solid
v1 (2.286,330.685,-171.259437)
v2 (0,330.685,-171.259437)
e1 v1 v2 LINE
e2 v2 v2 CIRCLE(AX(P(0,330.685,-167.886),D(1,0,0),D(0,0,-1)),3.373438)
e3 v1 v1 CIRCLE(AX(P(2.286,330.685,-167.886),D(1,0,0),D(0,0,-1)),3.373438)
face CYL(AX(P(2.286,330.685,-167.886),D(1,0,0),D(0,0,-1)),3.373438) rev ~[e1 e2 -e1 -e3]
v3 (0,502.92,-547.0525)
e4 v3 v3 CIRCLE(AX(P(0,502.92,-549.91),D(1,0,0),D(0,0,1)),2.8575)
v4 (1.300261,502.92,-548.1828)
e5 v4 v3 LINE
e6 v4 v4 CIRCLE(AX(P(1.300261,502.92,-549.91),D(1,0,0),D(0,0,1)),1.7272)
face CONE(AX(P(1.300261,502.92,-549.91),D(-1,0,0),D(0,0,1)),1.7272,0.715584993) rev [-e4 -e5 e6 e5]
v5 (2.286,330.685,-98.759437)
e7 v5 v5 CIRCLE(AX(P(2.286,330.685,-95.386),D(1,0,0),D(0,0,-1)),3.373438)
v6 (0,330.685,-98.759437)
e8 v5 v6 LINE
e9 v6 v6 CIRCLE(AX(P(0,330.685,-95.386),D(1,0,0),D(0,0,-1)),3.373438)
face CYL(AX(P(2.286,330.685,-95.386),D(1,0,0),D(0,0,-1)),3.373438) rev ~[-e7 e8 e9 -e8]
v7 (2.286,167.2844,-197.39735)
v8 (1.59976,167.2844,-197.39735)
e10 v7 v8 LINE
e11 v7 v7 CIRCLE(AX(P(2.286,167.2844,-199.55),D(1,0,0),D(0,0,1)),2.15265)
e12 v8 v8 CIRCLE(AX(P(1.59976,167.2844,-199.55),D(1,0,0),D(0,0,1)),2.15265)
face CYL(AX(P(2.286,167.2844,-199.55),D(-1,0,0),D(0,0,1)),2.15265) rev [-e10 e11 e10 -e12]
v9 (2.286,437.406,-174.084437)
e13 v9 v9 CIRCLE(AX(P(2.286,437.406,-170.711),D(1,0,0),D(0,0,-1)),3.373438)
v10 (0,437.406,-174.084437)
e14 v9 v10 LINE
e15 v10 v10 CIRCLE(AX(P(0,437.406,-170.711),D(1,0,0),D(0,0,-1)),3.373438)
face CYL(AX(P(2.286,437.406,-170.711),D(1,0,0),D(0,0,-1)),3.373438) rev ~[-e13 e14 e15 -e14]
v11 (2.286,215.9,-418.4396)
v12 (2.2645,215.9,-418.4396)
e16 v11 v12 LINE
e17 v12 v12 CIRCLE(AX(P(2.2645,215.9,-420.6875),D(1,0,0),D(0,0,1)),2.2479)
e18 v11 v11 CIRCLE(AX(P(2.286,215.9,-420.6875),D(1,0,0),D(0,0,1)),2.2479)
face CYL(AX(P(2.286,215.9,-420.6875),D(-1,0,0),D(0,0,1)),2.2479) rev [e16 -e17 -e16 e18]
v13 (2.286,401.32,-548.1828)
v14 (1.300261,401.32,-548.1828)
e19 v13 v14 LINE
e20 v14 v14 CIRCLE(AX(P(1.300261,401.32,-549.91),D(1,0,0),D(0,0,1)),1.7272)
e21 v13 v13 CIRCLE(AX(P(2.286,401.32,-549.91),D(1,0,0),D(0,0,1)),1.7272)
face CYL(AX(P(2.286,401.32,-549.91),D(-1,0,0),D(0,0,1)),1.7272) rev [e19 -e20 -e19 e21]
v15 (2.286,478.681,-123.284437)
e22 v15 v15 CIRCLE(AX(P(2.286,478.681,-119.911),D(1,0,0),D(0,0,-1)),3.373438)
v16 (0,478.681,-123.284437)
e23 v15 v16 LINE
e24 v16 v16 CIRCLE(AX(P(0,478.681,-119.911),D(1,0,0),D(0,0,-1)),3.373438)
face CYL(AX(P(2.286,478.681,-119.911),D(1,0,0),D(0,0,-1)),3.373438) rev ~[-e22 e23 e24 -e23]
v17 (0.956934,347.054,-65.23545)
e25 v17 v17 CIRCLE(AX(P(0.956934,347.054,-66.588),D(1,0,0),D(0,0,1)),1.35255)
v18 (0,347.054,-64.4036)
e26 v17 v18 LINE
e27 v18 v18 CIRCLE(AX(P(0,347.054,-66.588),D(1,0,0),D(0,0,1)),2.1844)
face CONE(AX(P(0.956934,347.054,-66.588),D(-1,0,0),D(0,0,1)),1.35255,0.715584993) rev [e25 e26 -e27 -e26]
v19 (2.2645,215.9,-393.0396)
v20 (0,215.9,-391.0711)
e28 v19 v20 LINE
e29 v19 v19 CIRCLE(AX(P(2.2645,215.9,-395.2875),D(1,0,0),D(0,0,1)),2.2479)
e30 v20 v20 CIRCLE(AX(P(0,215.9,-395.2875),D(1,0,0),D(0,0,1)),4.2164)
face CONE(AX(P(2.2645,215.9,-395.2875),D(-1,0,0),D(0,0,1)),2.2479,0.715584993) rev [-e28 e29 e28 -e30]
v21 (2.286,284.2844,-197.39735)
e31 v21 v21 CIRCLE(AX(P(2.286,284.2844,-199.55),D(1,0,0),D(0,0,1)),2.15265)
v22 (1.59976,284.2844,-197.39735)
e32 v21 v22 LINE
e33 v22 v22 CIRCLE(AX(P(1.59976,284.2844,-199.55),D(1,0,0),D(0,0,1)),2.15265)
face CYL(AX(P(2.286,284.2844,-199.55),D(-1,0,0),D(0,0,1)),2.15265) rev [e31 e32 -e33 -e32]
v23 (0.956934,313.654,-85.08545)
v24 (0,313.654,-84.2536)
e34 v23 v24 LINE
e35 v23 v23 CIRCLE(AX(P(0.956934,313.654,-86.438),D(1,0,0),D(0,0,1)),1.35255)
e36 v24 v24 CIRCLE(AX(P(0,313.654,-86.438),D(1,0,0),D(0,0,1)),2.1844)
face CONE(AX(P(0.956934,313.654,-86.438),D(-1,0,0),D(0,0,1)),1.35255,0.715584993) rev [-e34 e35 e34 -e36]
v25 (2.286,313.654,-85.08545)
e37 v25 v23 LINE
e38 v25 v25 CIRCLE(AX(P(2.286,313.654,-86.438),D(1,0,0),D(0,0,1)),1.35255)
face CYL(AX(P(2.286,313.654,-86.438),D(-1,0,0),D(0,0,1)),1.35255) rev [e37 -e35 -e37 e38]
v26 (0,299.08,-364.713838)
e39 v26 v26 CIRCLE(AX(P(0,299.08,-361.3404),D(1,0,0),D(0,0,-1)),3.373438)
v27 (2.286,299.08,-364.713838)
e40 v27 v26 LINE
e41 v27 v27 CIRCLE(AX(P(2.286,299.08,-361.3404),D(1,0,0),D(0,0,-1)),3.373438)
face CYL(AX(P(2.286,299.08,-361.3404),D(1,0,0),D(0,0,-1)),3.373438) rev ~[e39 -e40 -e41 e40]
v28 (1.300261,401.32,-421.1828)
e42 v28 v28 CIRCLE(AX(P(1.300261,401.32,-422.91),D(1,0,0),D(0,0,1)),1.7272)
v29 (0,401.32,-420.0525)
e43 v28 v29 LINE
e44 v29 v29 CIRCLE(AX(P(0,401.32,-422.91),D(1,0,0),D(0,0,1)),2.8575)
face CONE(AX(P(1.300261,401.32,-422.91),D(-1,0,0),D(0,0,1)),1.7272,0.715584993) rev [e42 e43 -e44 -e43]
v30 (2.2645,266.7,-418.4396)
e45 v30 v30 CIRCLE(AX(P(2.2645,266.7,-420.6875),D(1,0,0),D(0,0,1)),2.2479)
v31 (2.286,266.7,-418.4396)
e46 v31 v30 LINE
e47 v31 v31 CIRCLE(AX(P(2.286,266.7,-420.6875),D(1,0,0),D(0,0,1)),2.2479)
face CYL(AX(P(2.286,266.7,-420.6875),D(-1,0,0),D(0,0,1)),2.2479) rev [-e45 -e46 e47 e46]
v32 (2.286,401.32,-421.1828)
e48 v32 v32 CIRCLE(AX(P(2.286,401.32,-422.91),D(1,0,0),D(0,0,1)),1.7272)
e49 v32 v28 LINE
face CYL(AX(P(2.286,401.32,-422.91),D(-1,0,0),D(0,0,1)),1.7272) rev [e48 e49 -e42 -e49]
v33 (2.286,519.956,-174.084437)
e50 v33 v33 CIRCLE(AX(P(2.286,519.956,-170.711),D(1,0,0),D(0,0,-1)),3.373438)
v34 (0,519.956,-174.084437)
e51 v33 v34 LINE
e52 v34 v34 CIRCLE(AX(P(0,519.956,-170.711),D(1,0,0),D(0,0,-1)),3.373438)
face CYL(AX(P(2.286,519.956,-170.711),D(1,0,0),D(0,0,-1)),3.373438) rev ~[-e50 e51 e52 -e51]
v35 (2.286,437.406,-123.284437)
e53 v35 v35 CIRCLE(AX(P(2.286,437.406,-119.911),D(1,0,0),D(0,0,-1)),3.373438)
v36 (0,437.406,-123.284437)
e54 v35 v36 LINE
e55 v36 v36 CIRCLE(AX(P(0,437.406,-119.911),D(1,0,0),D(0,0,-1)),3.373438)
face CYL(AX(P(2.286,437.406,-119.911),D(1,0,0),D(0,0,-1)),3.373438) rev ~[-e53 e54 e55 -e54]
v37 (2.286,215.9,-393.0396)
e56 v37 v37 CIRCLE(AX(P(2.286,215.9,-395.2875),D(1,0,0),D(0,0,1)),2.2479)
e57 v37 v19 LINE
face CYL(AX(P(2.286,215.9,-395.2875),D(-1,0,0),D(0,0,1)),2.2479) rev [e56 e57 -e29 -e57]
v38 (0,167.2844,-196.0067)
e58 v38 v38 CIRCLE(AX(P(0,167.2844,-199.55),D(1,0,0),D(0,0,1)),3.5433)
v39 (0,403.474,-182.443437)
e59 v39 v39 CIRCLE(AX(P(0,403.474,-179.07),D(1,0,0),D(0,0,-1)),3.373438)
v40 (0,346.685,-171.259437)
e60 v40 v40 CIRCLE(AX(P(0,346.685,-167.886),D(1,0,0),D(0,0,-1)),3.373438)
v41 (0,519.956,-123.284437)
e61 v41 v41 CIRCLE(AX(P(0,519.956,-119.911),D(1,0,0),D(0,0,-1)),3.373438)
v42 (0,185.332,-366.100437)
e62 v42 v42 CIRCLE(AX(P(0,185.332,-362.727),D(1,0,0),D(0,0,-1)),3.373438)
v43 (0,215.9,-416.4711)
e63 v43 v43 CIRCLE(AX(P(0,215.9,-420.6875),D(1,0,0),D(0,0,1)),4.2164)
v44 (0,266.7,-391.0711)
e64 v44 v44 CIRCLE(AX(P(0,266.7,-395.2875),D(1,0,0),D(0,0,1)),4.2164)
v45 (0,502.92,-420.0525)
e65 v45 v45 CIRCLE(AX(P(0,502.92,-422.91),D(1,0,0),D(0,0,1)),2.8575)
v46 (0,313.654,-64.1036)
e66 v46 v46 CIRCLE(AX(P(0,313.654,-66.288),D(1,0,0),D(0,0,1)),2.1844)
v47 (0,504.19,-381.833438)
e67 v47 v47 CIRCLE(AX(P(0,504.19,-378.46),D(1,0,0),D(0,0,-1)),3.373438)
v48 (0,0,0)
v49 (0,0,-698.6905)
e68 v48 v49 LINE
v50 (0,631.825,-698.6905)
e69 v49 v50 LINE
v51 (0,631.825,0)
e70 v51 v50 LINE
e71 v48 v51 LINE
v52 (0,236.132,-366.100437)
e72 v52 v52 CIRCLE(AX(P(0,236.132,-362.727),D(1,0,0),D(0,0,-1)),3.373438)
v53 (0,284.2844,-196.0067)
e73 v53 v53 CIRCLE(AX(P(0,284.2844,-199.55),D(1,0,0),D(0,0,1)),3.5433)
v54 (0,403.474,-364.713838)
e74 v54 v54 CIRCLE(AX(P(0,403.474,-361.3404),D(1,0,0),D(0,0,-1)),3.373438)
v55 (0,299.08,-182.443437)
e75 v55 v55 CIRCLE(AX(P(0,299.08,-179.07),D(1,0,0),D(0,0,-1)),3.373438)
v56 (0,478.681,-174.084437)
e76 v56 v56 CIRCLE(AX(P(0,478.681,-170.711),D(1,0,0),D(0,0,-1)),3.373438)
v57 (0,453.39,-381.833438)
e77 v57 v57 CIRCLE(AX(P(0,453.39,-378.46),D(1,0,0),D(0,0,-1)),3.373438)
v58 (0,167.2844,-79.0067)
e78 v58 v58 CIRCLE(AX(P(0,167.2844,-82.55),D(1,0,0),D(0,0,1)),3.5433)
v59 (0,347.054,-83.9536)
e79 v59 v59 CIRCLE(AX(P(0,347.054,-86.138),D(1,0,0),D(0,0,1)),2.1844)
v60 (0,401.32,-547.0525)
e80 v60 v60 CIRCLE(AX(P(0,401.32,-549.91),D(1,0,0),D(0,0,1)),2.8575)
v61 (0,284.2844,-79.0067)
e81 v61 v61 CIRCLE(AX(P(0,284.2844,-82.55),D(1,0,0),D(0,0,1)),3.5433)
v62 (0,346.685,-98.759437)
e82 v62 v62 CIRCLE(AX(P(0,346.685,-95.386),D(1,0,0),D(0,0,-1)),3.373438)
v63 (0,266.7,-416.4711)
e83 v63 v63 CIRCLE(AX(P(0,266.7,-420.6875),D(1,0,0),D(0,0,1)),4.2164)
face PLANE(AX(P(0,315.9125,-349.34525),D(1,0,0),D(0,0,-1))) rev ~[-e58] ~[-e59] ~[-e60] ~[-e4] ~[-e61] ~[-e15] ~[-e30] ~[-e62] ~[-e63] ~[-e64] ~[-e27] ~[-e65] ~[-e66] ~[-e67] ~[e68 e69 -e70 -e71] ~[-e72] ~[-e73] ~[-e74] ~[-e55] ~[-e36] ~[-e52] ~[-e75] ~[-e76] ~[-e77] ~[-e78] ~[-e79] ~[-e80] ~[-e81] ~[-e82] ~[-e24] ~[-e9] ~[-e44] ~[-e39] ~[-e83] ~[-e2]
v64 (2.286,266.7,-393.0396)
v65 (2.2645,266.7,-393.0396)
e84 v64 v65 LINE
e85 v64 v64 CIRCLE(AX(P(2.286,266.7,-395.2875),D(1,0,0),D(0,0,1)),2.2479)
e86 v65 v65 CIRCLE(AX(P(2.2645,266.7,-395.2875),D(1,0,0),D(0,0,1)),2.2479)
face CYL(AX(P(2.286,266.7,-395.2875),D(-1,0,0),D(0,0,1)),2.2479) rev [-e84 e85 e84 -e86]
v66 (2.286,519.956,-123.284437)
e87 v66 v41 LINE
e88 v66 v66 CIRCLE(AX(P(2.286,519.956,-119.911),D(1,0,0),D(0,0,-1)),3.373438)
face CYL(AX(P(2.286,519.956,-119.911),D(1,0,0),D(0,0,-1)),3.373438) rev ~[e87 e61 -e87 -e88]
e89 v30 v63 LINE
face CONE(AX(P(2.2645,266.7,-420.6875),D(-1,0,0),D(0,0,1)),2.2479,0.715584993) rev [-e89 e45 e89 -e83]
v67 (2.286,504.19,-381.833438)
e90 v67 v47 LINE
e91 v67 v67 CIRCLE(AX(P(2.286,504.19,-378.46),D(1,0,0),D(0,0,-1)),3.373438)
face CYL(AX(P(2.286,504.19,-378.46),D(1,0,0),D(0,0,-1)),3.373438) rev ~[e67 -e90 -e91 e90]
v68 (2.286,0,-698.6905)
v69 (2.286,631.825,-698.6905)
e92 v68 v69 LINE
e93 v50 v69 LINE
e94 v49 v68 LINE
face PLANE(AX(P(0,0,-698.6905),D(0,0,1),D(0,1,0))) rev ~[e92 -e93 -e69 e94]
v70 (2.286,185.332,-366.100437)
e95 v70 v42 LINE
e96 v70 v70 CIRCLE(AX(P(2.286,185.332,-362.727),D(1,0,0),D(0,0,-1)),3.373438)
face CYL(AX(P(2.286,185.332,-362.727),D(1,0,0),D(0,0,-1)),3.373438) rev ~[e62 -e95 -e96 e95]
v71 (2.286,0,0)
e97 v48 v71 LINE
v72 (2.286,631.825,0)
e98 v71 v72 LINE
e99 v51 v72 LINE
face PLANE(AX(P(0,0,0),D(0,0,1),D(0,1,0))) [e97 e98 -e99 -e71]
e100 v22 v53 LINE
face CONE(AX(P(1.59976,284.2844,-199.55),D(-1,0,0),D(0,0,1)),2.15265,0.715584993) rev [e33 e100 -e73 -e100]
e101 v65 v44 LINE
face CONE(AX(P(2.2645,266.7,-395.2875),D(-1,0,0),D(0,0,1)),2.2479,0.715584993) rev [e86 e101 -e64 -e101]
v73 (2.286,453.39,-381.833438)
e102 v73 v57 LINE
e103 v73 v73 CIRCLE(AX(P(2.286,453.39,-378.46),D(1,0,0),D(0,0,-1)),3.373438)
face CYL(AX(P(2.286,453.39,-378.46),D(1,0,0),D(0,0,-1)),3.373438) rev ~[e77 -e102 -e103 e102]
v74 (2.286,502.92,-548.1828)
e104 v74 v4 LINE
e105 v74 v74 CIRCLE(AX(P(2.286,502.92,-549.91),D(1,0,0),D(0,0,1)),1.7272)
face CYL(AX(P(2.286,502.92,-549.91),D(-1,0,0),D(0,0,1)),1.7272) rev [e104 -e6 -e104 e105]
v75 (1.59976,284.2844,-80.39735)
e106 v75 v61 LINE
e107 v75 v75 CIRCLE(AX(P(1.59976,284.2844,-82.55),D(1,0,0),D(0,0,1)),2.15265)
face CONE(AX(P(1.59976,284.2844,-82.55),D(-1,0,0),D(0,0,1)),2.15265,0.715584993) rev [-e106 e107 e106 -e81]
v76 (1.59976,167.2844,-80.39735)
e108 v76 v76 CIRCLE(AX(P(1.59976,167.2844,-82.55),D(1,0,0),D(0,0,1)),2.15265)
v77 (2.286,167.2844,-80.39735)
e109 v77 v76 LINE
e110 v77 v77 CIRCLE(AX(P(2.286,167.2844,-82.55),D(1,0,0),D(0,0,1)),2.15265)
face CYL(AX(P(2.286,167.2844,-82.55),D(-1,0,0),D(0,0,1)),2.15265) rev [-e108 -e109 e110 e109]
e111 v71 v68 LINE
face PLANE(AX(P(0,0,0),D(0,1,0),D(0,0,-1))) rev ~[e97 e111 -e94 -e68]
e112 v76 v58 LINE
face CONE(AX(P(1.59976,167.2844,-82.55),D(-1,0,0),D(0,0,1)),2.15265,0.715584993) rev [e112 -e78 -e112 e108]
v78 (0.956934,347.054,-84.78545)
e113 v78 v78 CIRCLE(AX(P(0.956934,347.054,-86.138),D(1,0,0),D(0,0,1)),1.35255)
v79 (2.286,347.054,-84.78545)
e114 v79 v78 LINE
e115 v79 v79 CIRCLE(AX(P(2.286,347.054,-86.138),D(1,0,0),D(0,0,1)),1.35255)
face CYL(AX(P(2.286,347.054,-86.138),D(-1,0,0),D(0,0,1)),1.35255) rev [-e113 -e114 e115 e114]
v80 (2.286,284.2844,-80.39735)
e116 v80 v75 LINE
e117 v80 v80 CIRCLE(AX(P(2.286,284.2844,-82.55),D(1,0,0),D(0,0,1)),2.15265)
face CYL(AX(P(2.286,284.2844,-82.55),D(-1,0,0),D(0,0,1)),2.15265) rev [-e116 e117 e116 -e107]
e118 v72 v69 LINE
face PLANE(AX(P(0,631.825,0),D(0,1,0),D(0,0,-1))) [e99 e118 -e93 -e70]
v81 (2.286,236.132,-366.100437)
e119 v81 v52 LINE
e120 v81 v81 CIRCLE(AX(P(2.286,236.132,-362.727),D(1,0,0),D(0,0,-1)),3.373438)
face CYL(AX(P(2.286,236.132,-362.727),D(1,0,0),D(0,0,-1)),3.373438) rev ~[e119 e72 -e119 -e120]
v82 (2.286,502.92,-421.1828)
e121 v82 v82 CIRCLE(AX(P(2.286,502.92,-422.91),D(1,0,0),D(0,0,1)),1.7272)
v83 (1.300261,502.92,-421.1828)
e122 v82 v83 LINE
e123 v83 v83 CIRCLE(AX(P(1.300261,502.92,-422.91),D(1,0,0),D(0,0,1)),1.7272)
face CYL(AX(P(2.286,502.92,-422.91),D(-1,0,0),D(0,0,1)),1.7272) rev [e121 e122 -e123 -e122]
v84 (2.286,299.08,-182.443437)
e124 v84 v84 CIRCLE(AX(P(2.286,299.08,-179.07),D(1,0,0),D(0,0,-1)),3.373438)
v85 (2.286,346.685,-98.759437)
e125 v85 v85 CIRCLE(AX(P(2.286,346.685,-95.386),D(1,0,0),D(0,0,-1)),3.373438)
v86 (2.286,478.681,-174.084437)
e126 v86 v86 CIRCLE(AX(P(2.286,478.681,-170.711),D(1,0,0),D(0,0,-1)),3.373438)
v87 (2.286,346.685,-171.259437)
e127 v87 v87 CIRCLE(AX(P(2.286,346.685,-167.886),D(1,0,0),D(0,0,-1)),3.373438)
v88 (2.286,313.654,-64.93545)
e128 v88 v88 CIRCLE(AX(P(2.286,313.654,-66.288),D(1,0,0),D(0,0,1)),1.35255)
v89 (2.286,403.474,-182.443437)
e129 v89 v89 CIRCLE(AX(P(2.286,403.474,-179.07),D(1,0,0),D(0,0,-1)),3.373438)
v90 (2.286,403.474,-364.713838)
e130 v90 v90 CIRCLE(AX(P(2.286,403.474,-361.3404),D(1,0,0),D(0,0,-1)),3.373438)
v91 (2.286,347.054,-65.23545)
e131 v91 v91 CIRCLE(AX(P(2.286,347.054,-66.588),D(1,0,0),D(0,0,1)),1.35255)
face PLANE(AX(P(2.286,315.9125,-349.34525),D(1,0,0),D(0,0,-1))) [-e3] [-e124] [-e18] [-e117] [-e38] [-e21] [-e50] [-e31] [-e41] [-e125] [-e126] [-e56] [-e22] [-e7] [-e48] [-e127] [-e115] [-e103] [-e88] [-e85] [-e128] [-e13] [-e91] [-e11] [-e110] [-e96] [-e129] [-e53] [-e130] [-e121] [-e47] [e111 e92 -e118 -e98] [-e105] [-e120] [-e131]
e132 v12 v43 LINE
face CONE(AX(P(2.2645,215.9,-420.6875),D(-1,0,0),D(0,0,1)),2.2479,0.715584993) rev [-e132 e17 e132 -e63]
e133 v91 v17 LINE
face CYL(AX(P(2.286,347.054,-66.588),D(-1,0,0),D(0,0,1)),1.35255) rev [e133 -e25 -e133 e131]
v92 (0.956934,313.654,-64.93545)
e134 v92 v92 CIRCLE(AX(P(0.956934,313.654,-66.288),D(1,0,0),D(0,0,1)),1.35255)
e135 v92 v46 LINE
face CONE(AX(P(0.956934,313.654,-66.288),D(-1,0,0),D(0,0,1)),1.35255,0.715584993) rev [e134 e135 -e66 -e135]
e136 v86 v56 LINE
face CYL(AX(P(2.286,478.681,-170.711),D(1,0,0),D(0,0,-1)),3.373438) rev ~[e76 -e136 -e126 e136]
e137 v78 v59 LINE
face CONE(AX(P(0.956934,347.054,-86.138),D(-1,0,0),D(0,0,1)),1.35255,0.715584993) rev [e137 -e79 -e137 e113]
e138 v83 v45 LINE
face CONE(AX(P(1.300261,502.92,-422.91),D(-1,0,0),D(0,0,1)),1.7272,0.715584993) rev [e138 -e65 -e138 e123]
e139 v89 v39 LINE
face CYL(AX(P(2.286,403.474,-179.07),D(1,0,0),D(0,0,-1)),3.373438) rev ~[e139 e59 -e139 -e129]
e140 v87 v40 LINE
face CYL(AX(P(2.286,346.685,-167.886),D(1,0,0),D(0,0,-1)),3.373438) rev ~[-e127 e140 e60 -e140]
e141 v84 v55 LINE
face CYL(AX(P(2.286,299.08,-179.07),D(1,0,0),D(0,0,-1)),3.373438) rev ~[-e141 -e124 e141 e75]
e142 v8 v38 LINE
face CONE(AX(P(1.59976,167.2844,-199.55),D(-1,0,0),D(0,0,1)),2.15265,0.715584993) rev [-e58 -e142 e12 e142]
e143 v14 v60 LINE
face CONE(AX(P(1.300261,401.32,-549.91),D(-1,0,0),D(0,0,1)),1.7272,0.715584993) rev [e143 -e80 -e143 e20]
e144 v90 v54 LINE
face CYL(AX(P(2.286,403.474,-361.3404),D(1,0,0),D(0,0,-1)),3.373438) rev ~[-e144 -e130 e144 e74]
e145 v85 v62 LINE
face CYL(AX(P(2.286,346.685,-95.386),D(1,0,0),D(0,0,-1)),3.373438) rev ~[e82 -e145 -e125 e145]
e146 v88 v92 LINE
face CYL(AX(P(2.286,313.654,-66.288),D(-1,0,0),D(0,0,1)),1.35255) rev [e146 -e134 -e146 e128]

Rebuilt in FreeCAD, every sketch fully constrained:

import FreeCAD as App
import Part
import Sketcher

V = App.Vector
Q = App.Units.Quantity

doc = App.newDocument("Part")
body = doc.addObject("PartDesign::Body", "Body")

# Sketch on YZ plane
sketch1 = doc.addObject("Sketcher::SketchObject", "Sketch")
body.addObject(sketch1)
sketch1.AttachmentSupport = (doc.YZ_Plane, [""])
sketch1.MapMode = "FlatFace"
sketch1.addGeometry([
    Part.LineSegment(V(632, 0, 0), V(0, 0, 0)),
    Part.LineSegment(V(0, 0, 0), V(0, -699, 0)),
    Part.LineSegment(V(0, -699, 0), V(632, -699, 0)),
    Part.LineSegment(V(632, -699, 0), V(632, 0, 0)),
], False)
sketch1.addConstraint([
    Sketcher.Constraint("Coincident", 0, 2, 1, 1),
    Sketcher.Constraint("Coincident", 1, 2, 2, 1),
    Sketcher.Constraint("Coincident", 2, 2, 3, 1),
    Sketcher.Constraint("Coincident", 3, 2, 0, 1),
    Sketcher.Constraint("Horizontal", 0),
    Sketcher.Constraint("Vertical", 1),
    Sketcher.Constraint("Horizontal", 2),
    Sketcher.Constraint("Vertical", 3),
    Sketcher.Constraint("Coincident", 0, 2, -1, 1),
    Sketcher.Constraint("DistanceX", 0, 2, 0, 1, Q("24.875 in")),
    Sketcher.Constraint("DistanceY", 1, 2, 1, 1, Q("27.5075 in")),
])
pad1 = doc.addObject("PartDesign::Pad", "Pad")
body.addObject(pad1)
pad1.Profile = sketch1
pad1.Length = Q("0.09 in")

# Sketch on YZ plane
sketch2 = doc.addObject("Sketcher::SketchObject", "Sketch001")
body.addObject(sketch2)
sketch2.AttachmentSupport = (doc.YZ_Plane, [""])
sketch2.MapMode = "FlatFace"
sketch2.AttachmentOffset = App.Placement(V(0, 0, 0.09 * 25.4), App.Rotation())
sketch2.addGeometry([
    Part.Circle(V(299.1, -179.1, 0), V(0, 0, 1), 3.4),  # 0
    Part.Circle(V(403.5, -179.1, 0), V(0, 0, 1), 3.4),  # 1
    Part.Circle(V(403.5, -361.3, 0), V(0, 0, 1), 3.4),  # 2
    Part.Circle(V(299.1, -361.3, 0), V(0, 0, 1), 3.4),  # 3
    Part.Circle(V(437.4, -119.9, 0), V(0, 0, 1), 3.4),  # 4
    Part.Circle(V(437.4, -170.7, 0), V(0, 0, 1), 3.4),  # 5
    Part.Circle(V(478.7, -119.9, 0), V(0, 0, 1), 3.4),  # 6
    Part.Circle(V(478.7, -170.7, 0), V(0, 0, 1), 3.4),  # 7
    Part.Circle(V(520, -119.9, 0), V(0, 0, 1), 3.4),  # 8
    Part.Circle(V(520, -170.7, 0), V(0, 0, 1), 3.4),  # 9
    Part.Circle(V(185.3, -362.7, 0), V(0, 0, 1), 3.4),  # 10
    Part.Circle(V(236.1, -362.7, 0), V(0, 0, 1), 3.4),  # 11
    Part.Circle(V(453.4, -378.5, 0), V(0, 0, 1), 3.4),  # 12
    Part.Circle(V(504.2, -378.5, 0), V(0, 0, 1), 3.4),  # 13
    Part.Circle(V(330.7, -95.4, 0), V(0, 0, 1), 3.4),  # 14
    Part.Circle(V(346.7, -95.4, 0), V(0, 0, 1), 3.4),  # 15
    Part.Circle(V(346.7, -167.9, 0), V(0, 0, 1), 3.4),  # 16
    Part.Circle(V(330.7, -167.9, 0), V(0, 0, 1), 3.4),  # 17
], False)
sketch2.addConstraint([
    Sketcher.Constraint("Equal", 0, 1),
    Sketcher.Constraint("Equal", 1, 2),
    Sketcher.Constraint("Equal", 2, 3),
    Sketcher.Constraint("Equal", 3, 4),
    Sketcher.Constraint("Equal", 4, 5),
    Sketcher.Constraint("Equal", 5, 6),
    Sketcher.Constraint("Equal", 6, 7),
    Sketcher.Constraint("Equal", 7, 8),
    Sketcher.Constraint("Equal", 8, 9),
    Sketcher.Constraint("Equal", 9, 10),
    Sketcher.Constraint("Equal", 10, 11),
    Sketcher.Constraint("Equal", 11, 12),
    Sketcher.Constraint("Equal", 12, 13),
    Sketcher.Constraint("Equal", 13, 14),
    Sketcher.Constraint("Equal", 14, 15),
    Sketcher.Constraint("Equal", 15, 16),
    Sketcher.Constraint("Equal", 16, 17),
    Sketcher.Constraint("Horizontal", 0, 3, 1, 3),
    Sketcher.Constraint("Horizontal", 2, 3, 3, 3),
    Sketcher.Constraint("Horizontal", 4, 3, 6, 3),
    Sketcher.Constraint("Horizontal", 5, 3, 7, 3),
    Sketcher.Constraint("Horizontal", 6, 3, 8, 3),
    Sketcher.Constraint("Horizontal", 7, 3, 9, 3),
    Sketcher.Constraint("Horizontal", 10, 3, 11, 3),
    Sketcher.Constraint("Horizontal", 12, 3, 13, 3),
    Sketcher.Constraint("Horizontal", 14, 3, 15, 3),
    Sketcher.Constraint("Horizontal", 16, 3, 17, 3),
    Sketcher.Constraint("Vertical", 1, 3, 2, 3),
    Sketcher.Constraint("Vertical", 0, 3, 3, 3),
    Sketcher.Constraint("Vertical", 4, 3, 5, 3),
    Sketcher.Constraint("Vertical", 6, 3, 7, 3),
    Sketcher.Constraint("Vertical", 8, 3, 9, 3),
    Sketcher.Constraint("Vertical", 15, 3, 16, 3),
    Sketcher.Constraint("Vertical", 14, 3, 17, 3),
    Sketcher.Constraint("Diameter", 0, Q("0.265625 in")),
    Sketcher.Constraint("DistanceY", 5, 3, 4, 3, Q("2 in")),
    Sketcher.Constraint("DistanceX", 10, 3, 11, 3, Q("2 in")),
    Sketcher.Constraint("DistanceX", 12, 3, 13, 3, Q("2 in")),
    Sketcher.Constraint("DistanceY", 12, 3, -1, 1, Q("14.9 in")),
    Sketcher.Constraint("DistanceY", 0, 3, -1, 1, Q("7.05 in")),
    Sketcher.Constraint("DistanceX", -1, 1, 12, 3, Q("17.85 in")),
    Sketcher.Constraint("DistanceX", 0, 3, 1, 3, Q("4.11 in")),
    Sketcher.Constraint("DistanceX", 4, 3, 8, 3, Q("3.25 in")),
    Sketcher.Constraint("DistanceY", 2, 3, -1, 1, Q("14.226 in")),
    Sketcher.Constraint("DistanceX", 4, 3, 6, 3, Q("1.625 in")),
    Sketcher.Constraint("DistanceX", -1, 1, 0, 3, 299.08),
    Sketcher.Constraint("DistanceX", -1, 1, 4, 3, 437.406),
    Sketcher.Constraint("DistanceY", 4, 3, -1, 1, 119.911),
    Sketcher.Constraint("DistanceX", -1, 1, 10, 3, 185.332),
    Sketcher.Constraint("DistanceY", 10, 3, -1, 1, 362.727),
    Sketcher.Constraint("DistanceX", -1, 1, 14, 3, 330.685),
    Sketcher.Constraint("DistanceY", 14, 3, -1, 1, 95.386),
    Sketcher.Constraint("DistanceX", -1, 1, 15, 3, 346.685),
    Sketcher.Constraint("DistanceY", 16, 3, -1, 1, 167.886),
])
pocket1 = doc.addObject("PartDesign::Pocket", "Pocket")
body.addObject(pocket1)
pocket1.Profile = sketch2
pocket1.Type = "ThroughAll"

# Sketch on XZ plane
sketch3 = doc.addObject("Sketcher::SketchObject", "Sketch002")
body.addObject(sketch3)
sketch3.AttachmentSupport = (doc.XZ_Plane, [""])
sketch3.MapMode = "FlatFace"
sketch3.AttachmentOffset = App.Placement(V(0, 0, -6.586 * 25.4), App.Rotation())
sketch3.addGeometry([
    Part.LineSegment(V(2.3, -82.5, 0), V(0, -82.5, 0)),  # 0
    Part.LineSegment(V(0, -82.5, 0), V(0, -79, 0)),  # 1
    Part.LineSegment(V(0, -79, 0), V(1.6, -80.4, 0)),  # 2
    Part.LineSegment(V(1.6, -80.4, 0), V(2.3, -80.4, 0)),  # 3
    Part.LineSegment(V(2.3, -80.4, 0), V(2.3, -82.5, 0)),  # 4
], False)
sketch3.addGeometry(Part.LineSegment(V(0, -82.5, 0), V(2.3, -82.5, 0)), True)  # axis
sketch3.addConstraint([
    Sketcher.Constraint("Coincident", 0, 2, 1, 1),
    Sketcher.Constraint("Coincident", 1, 2, 2, 1),
    Sketcher.Constraint("Coincident", 2, 2, 3, 1),
    Sketcher.Constraint("Coincident", 3, 2, 4, 1),
    Sketcher.Constraint("Coincident", 4, 2, 0, 1),
    Sketcher.Constraint("Horizontal", 0),
    Sketcher.Constraint("Vertical", 1),
    Sketcher.Constraint("Horizontal", 3),
    Sketcher.Constraint("Vertical", 4),
    Sketcher.Constraint("Horizontal", 5),
    Sketcher.Constraint("Coincident", 5, 1, 0, 2),
    Sketcher.Constraint("PointOnObject", 0, 2, -2),
    Sketcher.Constraint("Vertical", 3, 2, 5, 2),
    Sketcher.Constraint("Angle", 2, Q("-41 deg")),
    Sketcher.Constraint("DistanceX", 0, 2, 0, 1, Q("0.09 in")),
    Sketcher.Constraint("DistanceY", 0, 2, -1, 1, Q("3.25 in")),
    Sketcher.Constraint("DistanceY", 1, 1, 1, 2, Q("0.1395 in")),
    Sketcher.Constraint("DistanceX", 3, 1, 3, 2, 0.68624),
])
groove = doc.addObject("PartDesign::Groove", "Groove")
body.addObject(groove)
groove.Profile = sketch3
groove.ReferenceAxis = (sketch3, ["Axis0"])
groove.Angle = 360
doc.recompute()

linearpattern = doc.addObject("PartDesign::LinearPattern", "LinearPattern")
body.addObject(linearpattern)
linearpattern.Originals = [groove]
linearpattern.Direction = (doc.Z_Axis, [""])
linearpattern.Mode = "offset"
linearpattern.Offset = 117
linearpattern.Occurrences = 2
linearpattern.Reversed = True
body.Tip = linearpattern
doc.recompute()

datumline = doc.addObject("PartDesign::Line", "DatumLine")
body.addObject(datumline)
datumline.Placement = App.Placement(V(0, 0, 0), App.Rotation(V(0, 0, 1), V(0, 0.707106781, -0.707106781)))
linearpattern2 = doc.addObject("PartDesign::LinearPattern", "LinearPattern001")
body.addObject(linearpattern2)
linearpattern2.Originals = [groove]
linearpattern2.Direction = (datumline, [""])
linearpattern2.Mode = "offset"
linearpattern2.Offset = 165.462987
linearpattern2.Occurrences = 2
body.Tip = linearpattern2
doc.recompute()

linearpattern3 = doc.addObject("PartDesign::LinearPattern", "LinearPattern002")
body.addObject(linearpattern3)
linearpattern3.Originals = [groove]
linearpattern3.Direction = (doc.Y_Axis, [""])
linearpattern3.Mode = "offset"
linearpattern3.Offset = 117
linearpattern3.Occurrences = 2
body.Tip = linearpattern3

# Sketch on XZ plane
sketch4 = doc.addObject("Sketcher::SketchObject", "Sketch003")
body.addObject(sketch4)
sketch4.AttachmentSupport = (doc.XZ_Plane, [""])
sketch4.MapMode = "FlatFace"
sketch4.AttachmentOffset = App.Placement(V(0, 0, -347.054), App.Rotation())
sketch4.addGeometry([
    Part.LineSegment(V(2.3, -66.6, 0), V(0, -66.6, 0)),  # 0
    Part.LineSegment(V(0, -66.6, 0), V(0, -64.4, 0)),  # 1
    Part.LineSegment(V(0, -64.4, 0), V(1, -65.2, 0)),  # 2
    Part.LineSegment(V(1, -65.2, 0), V(2.3, -65.2, 0)),  # 3
    Part.LineSegment(V(2.3, -65.2, 0), V(2.3, -66.6, 0)),  # 4
], False)
sketch4.addGeometry(Part.LineSegment(V(0, -66.6, 0), V(2.3, -66.6, 0)), True)  # axis
sketch4.addConstraint([
    Sketcher.Constraint("Coincident", 0, 2, 1, 1),
    Sketcher.Constraint("Coincident", 1, 2, 2, 1),
    Sketcher.Constraint("Coincident", 2, 2, 3, 1),
    Sketcher.Constraint("Coincident", 3, 2, 4, 1),
    Sketcher.Constraint("Coincident", 4, 2, 0, 1),
    Sketcher.Constraint("Horizontal", 0),
    Sketcher.Constraint("Vertical", 1),
    Sketcher.Constraint("Horizontal", 3),
    Sketcher.Constraint("Vertical", 4),
    Sketcher.Constraint("Horizontal", 5),
    Sketcher.Constraint("Coincident", 5, 1, 0, 2),
    Sketcher.Constraint("PointOnObject", 0, 2, -2),
    Sketcher.Constraint("Vertical", 3, 2, 5, 2),
    Sketcher.Constraint("Angle", 2, Q("-41 deg")),
    Sketcher.Constraint("DistanceX", 0, 2, 0, 1, Q("0.09 in")),
    Sketcher.Constraint("DistanceY", 1, 1, 1, 2, Q("0.086 in")),
    Sketcher.Constraint("DistanceY", 4, 2, 4, 1, 1.35255),
    Sketcher.Constraint("DistanceY", 0, 2, -1, 1, 66.588),
])
groove2 = doc.addObject("PartDesign::Groove", "Groove001")
body.addObject(groove2)
groove2.Profile = sketch4
groove2.ReferenceAxis = (sketch4, ["Axis0"])
groove2.Angle = 360
doc.recompute()

linearpattern4 = doc.addObject("PartDesign::LinearPattern", "LinearPattern003")
body.addObject(linearpattern4)
linearpattern4.Originals = [groove2]
linearpattern4.Direction = (doc.Z_Axis, [""])
linearpattern4.Mode = "offset"
linearpattern4.Offset = 19.55
linearpattern4.Occurrences = 2
linearpattern4.Reversed = True
body.Tip = linearpattern4
doc.recompute()

datumline2 = doc.addObject("PartDesign::Line", "DatumLine001")
body.addObject(datumline2)
datumline2.Placement = App.Placement(V(0, 0, 0), App.Rotation(V(0, 0, 1), V(0, -0.859642821, -0.510895509)))
linearpattern5 = doc.addObject("PartDesign::LinearPattern", "LinearPattern004")
body.addObject(linearpattern5)
linearpattern5.Originals = [groove2]
linearpattern5.Direction = (datumline2, [""])
linearpattern5.Mode = "offset"
linearpattern5.Offset = 38.853346
linearpattern5.Occurrences = 2
body.Tip = linearpattern5
doc.recompute()

datumline3 = doc.addObject("PartDesign::Line", "DatumLine002")
body.addObject(datumline3)
datumline3.Placement = App.Placement(V(0, 0, 0), App.Rotation(V(0, 0, 1), V(0, -0.999959664, 0.008981674)))
linearpattern6 = doc.addObject("PartDesign::LinearPattern", "LinearPattern005")
body.addObject(linearpattern6)
linearpattern6.Originals = [groove2]
linearpattern6.Direction = (datumline3, [""])
linearpattern6.Mode = "offset"
linearpattern6.Offset = 33.401347
linearpattern6.Occurrences = 2
body.Tip = linearpattern6

# Sketch on XZ plane
sketch5 = doc.addObject("Sketcher::SketchObject", "Sketch004")
body.addObject(sketch5)
sketch5.AttachmentSupport = (doc.XZ_Plane, [""])
sketch5.MapMode = "FlatFace"
sketch5.AttachmentOffset = App.Placement(V(0, 0, -19.8 * 25.4), App.Rotation())
sketch5.addGeometry([
    Part.LineSegment(V(2.3, -422.9, 0), V(0, -422.9, 0)),  # 0
    Part.LineSegment(V(0, -422.9, 0), V(0, -420.1, 0)),  # 1
    Part.LineSegment(V(0, -420.1, 0), V(1.3, -421.2, 0)),  # 2
    Part.LineSegment(V(1.3, -421.2, 0), V(2.3, -421.2, 0)),  # 3
    Part.LineSegment(V(2.3, -421.2, 0), V(2.3, -422.9, 0)),  # 4
], False)
sketch5.addGeometry(Part.LineSegment(V(0, -422.9, 0), V(2.3, -422.9, 0)), True)  # axis
sketch5.addConstraint([
    Sketcher.Constraint("Coincident", 0, 2, 1, 1),
    Sketcher.Constraint("Coincident", 1, 2, 2, 1),
    Sketcher.Constraint("Coincident", 2, 2, 3, 1),
    Sketcher.Constraint("Coincident", 3, 2, 4, 1),
    Sketcher.Constraint("Coincident", 4, 2, 0, 1),
    Sketcher.Constraint("Horizontal", 0),
    Sketcher.Constraint("Vertical", 1),
    Sketcher.Constraint("Horizontal", 3),
    Sketcher.Constraint("Vertical", 4),
    Sketcher.Constraint("Horizontal", 5),
    Sketcher.Constraint("Coincident", 5, 1, 0, 2),
    Sketcher.Constraint("PointOnObject", 0, 2, -2),
    Sketcher.Constraint("Vertical", 3, 2, 5, 2),
    Sketcher.Constraint("Angle", 2, Q("-41 deg")),
    Sketcher.Constraint("DistanceX", 0, 2, 0, 1, Q("0.09 in")),
    Sketcher.Constraint("DistanceY", 4, 2, 4, 1, Q("0.068 in")),
    Sketcher.Constraint("DistanceY", 0, 2, -1, 1, Q("16.65 in")),
    Sketcher.Constraint("DistanceY", 1, 1, 1, 2, Q("0.1125 in")),
])
groove3 = doc.addObject("PartDesign::Groove", "Groove002")
body.addObject(groove3)
groove3.Profile = sketch5
groove3.ReferenceAxis = (sketch5, ["Axis0"])
groove3.Angle = 360
doc.recompute()

linearpattern7 = doc.addObject("PartDesign::LinearPattern", "LinearPattern006")
body.addObject(linearpattern7)
linearpattern7.Originals = [groove3]
linearpattern7.Direction = (doc.Y_Axis, [""])
linearpattern7.Mode = "offset"
linearpattern7.Offset = Q("4 in")
linearpattern7.Occurrences = 2
linearpattern7.Reversed = True
body.Tip = linearpattern7
doc.recompute()

datumline4 = doc.addObject("PartDesign::Line", "DatumLine003")
body.addObject(datumline4)
datumline4.Placement = App.Placement(V(0, 0, 0), App.Rotation(V(0, 0, 1), V(0, -0.624695048, -0.780868809)))
linearpattern8 = doc.addObject("PartDesign::LinearPattern", "LinearPattern007")
body.addObject(linearpattern8)
linearpattern8.Originals = [groove3]
linearpattern8.Direction = (datumline4, [""])
linearpattern8.Mode = "offset"
linearpattern8.Offset = 162.639356
linearpattern8.Occurrences = 2
body.Tip = linearpattern8
doc.recompute()

linearpattern9 = doc.addObject("PartDesign::LinearPattern", "LinearPattern008")
body.addObject(linearpattern9)
linearpattern9.Originals = [groove3]
linearpattern9.Direction = (doc.Z_Axis, [""])
linearpattern9.Mode = "offset"
linearpattern9.Offset = Q("5 in")
linearpattern9.Occurrences = 2
linearpattern9.Reversed = True
body.Tip = linearpattern9

# Sketch on XZ plane
sketch6 = doc.addObject("Sketcher::SketchObject", "Sketch005")
body.addObject(sketch6)
sketch6.AttachmentSupport = (doc.XZ_Plane, [""])
sketch6.MapMode = "FlatFace"
sketch6.AttachmentOffset = App.Placement(V(0, 0, -8.5 * 25.4), App.Rotation())
sketch6.addGeometry([
    Part.LineSegment(V(2.286, -395.288, 0), V(0, -395.288, 0)),  # 0
    Part.LineSegment(V(0, -395.288, 0), V(0, -391.071, 0)),  # 1
    Part.LineSegment(V(0, -391.071, 0), V(2.265, -393.04, 0)),  # 2
    Part.LineSegment(V(2.265, -393.04, 0), V(2.286, -393.04, 0)),  # 3
    Part.LineSegment(V(2.286, -393.04, 0), V(2.286, -395.288, 0)),  # 4
], False)
sketch6.addGeometry(Part.LineSegment(V(0, -395.288, 0), V(2.286, -395.288, 0)), True)  # axis
sketch6.addConstraint([
    Sketcher.Constraint("Coincident", 0, 2, 1, 1),
    Sketcher.Constraint("Coincident", 1, 2, 2, 1),
    Sketcher.Constraint("Coincident", 2, 2, 3, 1),
    Sketcher.Constraint("Coincident", 3, 2, 4, 1),
    Sketcher.Constraint("Coincident", 4, 2, 0, 1),
    Sketcher.Constraint("Horizontal", 0),
    Sketcher.Constraint("Vertical", 1),
    Sketcher.Constraint("Horizontal", 3),
    Sketcher.Constraint("Vertical", 4),
    Sketcher.Constraint("Horizontal", 5),
    Sketcher.Constraint("Coincident", 5, 1, 0, 2),
    Sketcher.Constraint("PointOnObject", 0, 2, -2),
    Sketcher.Constraint("Vertical", 3, 2, 5, 2),
    Sketcher.Constraint("Angle", 2, Q("-41 deg")),
    Sketcher.Constraint("DistanceX", 0, 2, 0, 1, Q("0.09 in")),
    Sketcher.Constraint("DistanceY", 1, 1, 1, 2, Q("0.166 in")),
    Sketcher.Constraint("DistanceY", 4, 2, 4, 1, Q("0.0885 in")),
    Sketcher.Constraint("DistanceY", 0, 2, -1, 1, Q("15.5625 in")),
])
groove4 = doc.addObject("PartDesign::Groove", "Groove003")
body.addObject(groove4)
groove4.Profile = sketch6
groove4.ReferenceAxis = (sketch6, ["Axis0"])
groove4.Angle = 360
doc.recompute()

datumline5 = doc.addObject("PartDesign::Line", "DatumLine004")
body.addObject(datumline5)
datumline5.Placement = App.Placement(V(0, 0, 0), App.Rotation(V(0, 0, 1), V(0, 0.894427191, -0.447213595)))
linearpattern10 = doc.addObject("PartDesign::LinearPattern", "LinearPattern009")
body.addObject(linearpattern10)
linearpattern10.Originals = [groove4]
linearpattern10.Direction = (datumline5, [""])
linearpattern10.Mode = "offset"
linearpattern10.Offset = 56.796127
linearpattern10.Occurrences = 2
body.Tip = linearpattern10
doc.recompute()

linearpattern11 = doc.addObject("PartDesign::LinearPattern", "LinearPattern010")
body.addObject(linearpattern11)
linearpattern11.Originals = [groove4]
linearpattern11.Direction = (doc.Y_Axis, [""])
linearpattern11.Mode = "offset"
linearpattern11.Offset = Q("2 in")
linearpattern11.Occurrences = 2
body.Tip = linearpattern11
doc.recompute()

linearpattern12 = doc.addObject("PartDesign::LinearPattern", "LinearPattern011")
body.addObject(linearpattern12)
linearpattern12.Originals = [groove4]
linearpattern12.Direction = (doc.Z_Axis, [""])
linearpattern12.Mode = "offset"
linearpattern12.Offset = Q("1 in")
linearpattern12.Occurrences = 2
linearpattern12.Reversed = True
body.Tip = linearpattern12

doc.recompute()
